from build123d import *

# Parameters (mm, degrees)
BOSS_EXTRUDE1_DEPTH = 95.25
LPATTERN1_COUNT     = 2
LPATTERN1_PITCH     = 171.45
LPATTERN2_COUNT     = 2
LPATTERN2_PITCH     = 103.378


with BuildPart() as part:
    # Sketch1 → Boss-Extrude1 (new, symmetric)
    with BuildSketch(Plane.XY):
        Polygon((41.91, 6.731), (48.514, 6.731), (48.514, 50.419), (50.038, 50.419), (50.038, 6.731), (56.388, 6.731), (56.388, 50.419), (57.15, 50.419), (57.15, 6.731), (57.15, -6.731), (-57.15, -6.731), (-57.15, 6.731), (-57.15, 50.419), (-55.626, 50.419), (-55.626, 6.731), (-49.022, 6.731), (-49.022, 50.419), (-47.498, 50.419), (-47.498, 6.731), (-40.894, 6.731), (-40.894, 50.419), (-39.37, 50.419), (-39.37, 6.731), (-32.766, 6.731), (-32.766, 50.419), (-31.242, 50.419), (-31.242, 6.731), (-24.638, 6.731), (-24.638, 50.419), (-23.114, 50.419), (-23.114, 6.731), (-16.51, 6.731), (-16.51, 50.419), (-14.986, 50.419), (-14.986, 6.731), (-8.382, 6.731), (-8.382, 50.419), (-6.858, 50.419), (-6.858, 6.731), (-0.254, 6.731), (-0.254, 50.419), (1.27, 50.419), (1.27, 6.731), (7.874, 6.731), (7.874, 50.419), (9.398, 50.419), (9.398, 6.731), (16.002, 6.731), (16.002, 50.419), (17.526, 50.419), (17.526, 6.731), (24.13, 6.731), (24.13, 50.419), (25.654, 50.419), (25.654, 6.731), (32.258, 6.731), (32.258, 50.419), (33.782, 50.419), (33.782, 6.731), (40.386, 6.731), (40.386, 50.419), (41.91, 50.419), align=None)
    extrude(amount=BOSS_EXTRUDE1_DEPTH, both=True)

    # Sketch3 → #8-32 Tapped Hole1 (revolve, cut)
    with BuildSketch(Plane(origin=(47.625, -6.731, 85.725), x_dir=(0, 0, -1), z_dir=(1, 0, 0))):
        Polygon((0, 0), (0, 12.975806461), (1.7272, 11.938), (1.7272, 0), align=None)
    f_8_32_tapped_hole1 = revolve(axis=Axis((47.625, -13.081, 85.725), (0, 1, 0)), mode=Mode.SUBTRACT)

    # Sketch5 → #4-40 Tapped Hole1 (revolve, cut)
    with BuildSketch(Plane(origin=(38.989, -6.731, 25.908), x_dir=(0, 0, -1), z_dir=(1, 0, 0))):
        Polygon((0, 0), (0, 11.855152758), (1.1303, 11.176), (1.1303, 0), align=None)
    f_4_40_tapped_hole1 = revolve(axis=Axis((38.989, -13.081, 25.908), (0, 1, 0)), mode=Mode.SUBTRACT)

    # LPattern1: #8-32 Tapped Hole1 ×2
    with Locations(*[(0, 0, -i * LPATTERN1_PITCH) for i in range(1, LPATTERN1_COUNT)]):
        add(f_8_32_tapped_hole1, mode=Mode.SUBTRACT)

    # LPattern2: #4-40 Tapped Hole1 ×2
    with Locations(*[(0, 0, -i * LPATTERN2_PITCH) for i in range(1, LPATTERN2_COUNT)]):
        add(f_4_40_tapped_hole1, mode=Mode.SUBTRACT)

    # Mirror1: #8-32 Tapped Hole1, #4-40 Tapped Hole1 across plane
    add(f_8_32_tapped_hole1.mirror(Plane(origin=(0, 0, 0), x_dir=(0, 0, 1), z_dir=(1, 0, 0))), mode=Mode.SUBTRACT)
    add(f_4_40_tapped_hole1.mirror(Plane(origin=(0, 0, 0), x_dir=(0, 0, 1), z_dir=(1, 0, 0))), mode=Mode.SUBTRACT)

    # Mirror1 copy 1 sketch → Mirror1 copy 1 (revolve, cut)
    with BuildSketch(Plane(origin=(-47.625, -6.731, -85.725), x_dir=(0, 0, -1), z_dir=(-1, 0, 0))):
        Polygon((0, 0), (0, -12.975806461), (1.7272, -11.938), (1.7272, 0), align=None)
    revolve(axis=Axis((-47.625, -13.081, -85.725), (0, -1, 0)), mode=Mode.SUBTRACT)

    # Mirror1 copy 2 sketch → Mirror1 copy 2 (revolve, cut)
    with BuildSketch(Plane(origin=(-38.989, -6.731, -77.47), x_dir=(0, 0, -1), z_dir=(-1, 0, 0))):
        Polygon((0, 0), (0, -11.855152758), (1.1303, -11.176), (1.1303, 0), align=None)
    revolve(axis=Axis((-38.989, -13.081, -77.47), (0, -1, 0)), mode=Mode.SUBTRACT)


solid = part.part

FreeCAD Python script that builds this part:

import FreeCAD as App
import Part
import Sketcher

V = App.Vector
Q = App.Units.Quantity


def add_polygon(sketch, points):
    """Adds a closed chain of lines whose ends are joined by coincident constraints."""
    first, n = sketch.GeometryCount, len(points)
    for a, b in zip(points, points[1:] + points[:1]):
        sketch.addGeometry(Part.LineSegment(App.Vector(*a, 0), App.Vector(*b, 0)), False)
    for i in range(n):
        sketch.addConstraint(Sketcher.Constraint("Coincident", first + i, 2, first + (i + 1) % n, 1))

doc = App.newDocument("Part")
params = doc.addObject("Spreadsheet::Sheet", "Params")
for row, (alias, value) in enumerate([
    ("sketch1_width", "4.5 in"),
    ("sketch1_width2", "0.26 in"),
    ("sketch1_width3", "0.06 in"),
    ("sketch1_width4", "0.03 in"),
    ("sketch1_height", "1.72 in"),
    ("pad1_length", "7.5 in"),
    ("sketch2_width", "0.47 in"),
    ("sketch2_height", "0.068 in"),
    ("groove_angle", "360 deg"),
    ("sketch3_width", "0.44 in"),
    ("groove2_angle", "360 deg"),
    ("linearpattern_pitch", "6.75 in"),
    ("linearpattern2_pitch", "4.07 in"),
    ("sketch4_width", "0.47 in"),
    ("sketch4_height", "0.068 in"),
    ("groove3_angle", "360 deg"),
    ("sketch5_width", "0.44 in"),
    ("groove4_angle", "360 deg"),
], start=1):
    params.set(f"A{row}", alias)
    params.set(f"B{row}", "=" + value)
    params.setAlias(f"B{row}", alias)

body = doc.addObject("PartDesign::Body", "Body")

# Sketch on XY plane
sketch1 = body.newObject("Sketcher::SketchObject", "Sketch")
sketch1.AttachmentSupport = (doc.getObject("XY_Plane"), [""])
sketch1.MapMode = "FlatFace"
add_polygon(sketch1, [(48.5, 6.7), (41.9, 6.7), (41.9, 50.4), (40.4, 50.4), (40.4, 6.7), (33.8, 6.7), (33.8, 50.4), (32.3, 50.4), (32.3, 6.7), (25.7, 6.7), (25.7, 50.4), (24.1, 50.4), (24.1, 6.7), (17.5, 6.7), (17.5, 50.4), (16, 50.4), (16, 6.7), (9.4, 6.7), (9.4, 50.4), (7.9, 50.4), (7.9, 6.7), (1.3, 6.7), (1.3, 50.4), (-0.3, 50.4), (-0.3, 6.7), (-6.9, 6.7), (-6.9, 50.4), (-8.4, 50.4), (-8.4, 6.7), (-15, 6.7), (-15, 50.4), (-16.5, 50.4), (-16.5, 6.7), (-23.1, 6.7), (-23.1, 50.4), (-24.6, 50.4), (-24.6, 6.7), (-31.2, 6.7), (-31.2, 50.4), (-32.8, 50.4), (-32.8, 6.7), (-39.4, 6.7), (-39.4, 50.4), (-40.9, 50.4), (-40.9, 6.7), (-47.5, 6.7), (-47.5, 50.4), (-49, 50.4), (-49, 6.7), (-55.6, 6.7), (-55.6, 50.4), (-57.1, 50.4), (-57.1, -6.7), (57.1, -6.7), (57.1, 50.4), (56.4, 50.4), (56.4, 6.7), (50, 6.7), (50, 50.4), (48.5, 50.4)])  # lines 0-59
sketch1.addConstraint(Sketcher.Constraint("Horizontal", 0))
sketch1.addConstraint(Sketcher.Constraint("Vertical", 1))
sketch1.addConstraint(Sketcher.Constraint("Horizontal", 2))
sketch1.addConstraint(Sketcher.Constraint("Vertical", 3))
sketch1.addConstraint(Sketcher.Constraint("Horizontal", 4))
sketch1.addConstraint(Sketcher.Constraint("Vertical", 5))
sketch1.addConstraint(Sketcher.Constraint("Horizontal", 6))
sketch1.addConstraint(Sketcher.Constraint("Vertical", 7))
sketch1.addConstraint(Sketcher.Constraint("Horizontal", 8))
sketch1.addConstraint(Sketcher.Constraint("Vertical", 9))
sketch1.addConstraint(Sketcher.Constraint("Horizontal", 10))
sketch1.addConstraint(Sketcher.Constraint("Vertical", 11))
sketch1.addConstraint(Sketcher.Constraint("Horizontal", 12))
sketch1.addConstraint(Sketcher.Constraint("Vertical", 13))
sketch1.addConstraint(Sketcher.Constraint("Horizontal", 14))
sketch1.addConstraint(Sketcher.Constraint("Vertical", 15))
sketch1.addConstraint(Sketcher.Constraint("Horizontal", 16))
sketch1.addConstraint(Sketcher.Constraint("Vertical", 17))
sketch1.addConstraint(Sketcher.Constraint("Horizontal", 18))
sketch1.addConstraint(Sketcher.Constraint("Vertical", 19))
sketch1.addConstraint(Sketcher.Constraint("Horizontal", 20))
sketch1.addConstraint(Sketcher.Constraint("Vertical", 21))
sketch1.addConstraint(Sketcher.Constraint("Horizontal", 22))
sketch1.addConstraint(Sketcher.Constraint("Vertical", 23))
sketch1.addConstraint(Sketcher.Constraint("Horizontal", 24))
sketch1.addConstraint(Sketcher.Constraint("Vertical", 25))
sketch1.addConstraint(Sketcher.Constraint("Horizontal", 26))
sketch1.addConstraint(Sketcher.Constraint("Vertical", 27))
sketch1.addConstraint(Sketcher.Constraint("Horizontal", 28))
sketch1.addConstraint(Sketcher.Constraint("Vertical", 29))
sketch1.addConstraint(Sketcher.Constraint("Horizontal", 30))
sketch1.addConstraint(Sketcher.Constraint("Vertical", 31))
sketch1.addConstraint(Sketcher.Constraint("Horizontal", 32))
sketch1.addConstraint(Sketcher.Constraint("Vertical", 33))
sketch1.addConstraint(Sketcher.Constraint("Horizontal", 34))
sketch1.addConstraint(Sketcher.Constraint("Vertical", 35))
sketch1.addConstraint(Sketcher.Constraint("Horizontal", 36))
sketch1.addConstraint(Sketcher.Constraint("Vertical", 37))
sketch1.addConstraint(Sketcher.Constraint("Horizontal", 38))
sketch1.addConstraint(Sketcher.Constraint("Vertical", 39))
sketch1.addConstraint(Sketcher.Constraint("Horizontal", 40))
sketch1.addConstraint(Sketcher.Constraint("Vertical", 41))
sketch1.addConstraint(Sketcher.Constraint("Horizontal", 42))
sketch1.addConstraint(Sketcher.Constraint("Vertical", 43))
sketch1.addConstraint(Sketcher.Constraint("Horizontal", 44))
sketch1.addConstraint(Sketcher.Constraint("Vertical", 45))
sketch1.addConstraint(Sketcher.Constraint("Horizontal", 46))
sketch1.addConstraint(Sketcher.Constraint("Vertical", 47))
sketch1.addConstraint(Sketcher.Constraint("Horizontal", 48))
sketch1.addConstraint(Sketcher.Constraint("Vertical", 49))
sketch1.addConstraint(Sketcher.Constraint("Horizontal", 50))
sketch1.addConstraint(Sketcher.Constraint("Vertical", 51))
sketch1.addConstraint(Sketcher.Constraint("Horizontal", 52))
sketch1.addConstraint(Sketcher.Constraint("Vertical", 53))
sketch1.addConstraint(Sketcher.Constraint("Horizontal", 54))
sketch1.addConstraint(Sketcher.Constraint("Vertical", 55))
sketch1.addConstraint(Sketcher.Constraint("Horizontal", 56))
sketch1.addConstraint(Sketcher.Constraint("Vertical", 57))
sketch1.addConstraint(Sketcher.Constraint("Horizontal", 58))
sketch1.addConstraint(Sketcher.Constraint("Vertical", 59))
sketch1.addConstraint(Sketcher.Constraint("Symmetric", 50, 2, 53, 2, -2))
sketch1.addConstraint(Sketcher.Constraint("Horizontal", 0, 2, 3, 2))
sketch1.addConstraint(Sketcher.Constraint("Horizontal", 2, 2, 5, 2))
sketch1.addConstraint(Sketcher.Constraint("Horizontal", 4, 2, 7, 2))
sketch1.addConstraint(Sketcher.Constraint("Horizontal", 6, 2, 9, 2))
sketch1.addConstraint(Sketcher.Constraint("Horizontal", 8, 2, 11, 2))
sketch1.addConstraint(Sketcher.Constraint("Horizontal", 10, 2, 13, 2))
sketch1.addConstraint(Sketcher.Constraint("Horizontal", 12, 2, 15, 2))
sketch1.addConstraint(Sketcher.Constraint("Horizontal", 14, 2, 17, 2))
sketch1.addConstraint(Sketcher.Constraint("Horizontal", 16, 2, 19, 2))
sketch1.addConstraint(Sketcher.Constraint("Horizontal", 18, 2, 21, 2))
sketch1.addConstraint(Sketcher.Constraint("Horizontal", 20, 2, 23, 2))
sketch1.addConstraint(Sketcher.Constraint("Horizontal", 22, 2, 25, 2))
sketch1.addConstraint(Sketcher.Constraint("Horizontal", 24, 2, 27, 2))
sketch1.addConstraint(Sketcher.Constraint("Horizontal", 26, 2, 29, 2))
sketch1.addConstraint(Sketcher.Constraint("Horizontal", 28, 2, 31, 2))
sketch1.addConstraint(Sketcher.Constraint("Horizontal", 30, 2, 33, 2))
sketch1.addConstraint(Sketcher.Constraint("Horizontal", 32, 2, 35, 2))
sketch1.addConstraint(Sketcher.Constraint("Horizontal", 34, 2, 37, 2))
sketch1.addConstraint(Sketcher.Constraint("Horizontal", 36, 2, 39, 2))
sketch1.addConstraint(Sketcher.Constraint("Horizontal", 38, 2, 41, 2))
sketch1.addConstraint(Sketcher.Constraint("Horizontal", 40, 2, 43, 2))
sketch1.addConstraint(Sketcher.Constraint("Horizontal", 42, 2, 45, 2))
sketch1.addConstraint(Sketcher.Constraint("Horizontal", 44, 2, 47, 2))
sketch1.addConstraint(Sketcher.Constraint("Horizontal", 46, 2, 49, 2))
sketch1.addConstraint(Sketcher.Constraint("Horizontal", 48, 2, 55, 2))
sketch1.addConstraint(Sketcher.Constraint("Horizontal", 54, 2, 57, 2))
sketch1.addConstraint(Sketcher.Constraint("Equal", 0, 4))
sketch1.addConstraint(Sketcher.Constraint("Equal", 2, 6))
sketch1.addConstraint(Sketcher.Constraint("Equal", 4, 8))
sketch1.addConstraint(Sketcher.Constraint("Equal", 6, 10))
sketch1.addConstraint(Sketcher.Constraint("Equal", 8, 12))
sketch1.addConstraint(Sketcher.Constraint("Equal", 10, 14))
sketch1.addConstraint(Sketcher.Constraint("Equal", 12, 16))
sketch1.addConstraint(Sketcher.Constraint("Equal", 14, 18))
sketch1.addConstraint(Sketcher.Constraint("Equal", 16, 20))
sketch1.addConstraint(Sketcher.Constraint("Equal", 18, 22))
sketch1.addConstraint(Sketcher.Constraint("Equal", 20, 24))
sketch1.addConstraint(Sketcher.Constraint("Equal", 22, 26))
sketch1.addConstraint(Sketcher.Constraint("Equal", 24, 28))
sketch1.addConstraint(Sketcher.Constraint("Equal", 26, 30))
sketch1.addConstraint(Sketcher.Constraint("Equal", 28, 32))
sketch1.addConstraint(Sketcher.Constraint("Equal", 30, 34))
sketch1.addConstraint(Sketcher.Constraint("Equal", 32, 36))
sketch1.addConstraint(Sketcher.Constraint("Equal", 34, 38))
sketch1.addConstraint(Sketcher.Constraint("Equal", 36, 40))
sketch1.addConstraint(Sketcher.Constraint("Equal", 38, 42))
sketch1.addConstraint(Sketcher.Constraint("Equal", 40, 44))
sketch1.addConstraint(Sketcher.Constraint("Equal", 42, 46))
sketch1.addConstraint(Sketcher.Constraint("Equal", 44, 48))
sketch1.addConstraint(Sketcher.Constraint("Equal", 46, 50))
sketch1.addConstraint(Sketcher.Constraint("Equal", 50, 58))
sketch1.addConstraint(Sketcher.Constraint("DistanceX", 52, 1, 52, 2, Q("4.5 in")))
sketch1.addConstraint(Sketcher.Constraint("DistanceX", 0, 2, 0, 1, Q("0.26 in")))
sketch1.addConstraint(Sketcher.Constraint("DistanceX", 2, 2, 2, 1, Q("0.06 in")))
sketch1.addConstraint(Sketcher.Constraint("DistanceX", 54, 2, 54, 1, Q("0.03 in")))
sketch1.addConstraint(Sketcher.Constraint("DistanceY", 1, 1, 1, 2, Q("1.72 in")))
sketch1.addConstraint(Sketcher.Constraint("DistanceY", 51, 2, 51, 1, Q("2.25 in")))
sketch1.addConstraint(Sketcher.Constraint("DistanceY", -1, 1, 0, 2, Q("0.265 in")))
sketch1.setExpression("Constraints[172]", "Params.sketch1_width")
sketch1.setExpression("Constraints[173]", "Params.sketch1_width2")
sketch1.setExpression("Constraints[174]", "Params.sketch1_width3")
sketch1.setExpression("Constraints[175]", "Params.sketch1_width4")
sketch1.setExpression("Constraints[176]", "Params.sketch1_height")
pad1 = body.newObject("PartDesign::Pad", "Pad")
pad1.Profile = sketch1
pad1.setExpression("Length", "Params.pad1_length")
pad1.Midplane = True

# Sketch on YZ plane
sketch2 = body.newObject("Sketcher::SketchObject", "Sketch001")
sketch2.AttachmentSupport = (doc.getObject("YZ_Plane"), [""])
sketch2.MapMode = "FlatFace"
sketch2.AttachmentOffset = App.Placement(V(0, 0, 1.875 * 25.4), App.Rotation())
add_polygon(sketch2, [(6.2, 85.7), (-6.7, 85.7), (-6.7, 84), (5.2, 84)])  # lines 0-3
sketch2.addGeometry(Part.LineSegment(V(-6.7, 85.7, 0), V(6.2, 85.7, 0)), True)  # axis
sketch2.addConstraint(Sketcher.Constraint("Horizontal", 0))
sketch2.addConstraint(Sketcher.Constraint("Vertical", 1))
sketch2.addConstraint(Sketcher.Constraint("Horizontal", 2))
sketch2.addConstraint(Sketcher.Constraint("Horizontal", 4))
sketch2.addConstraint(Sketcher.Constraint("Coincident", 4, 1, 0, 2))
sketch2.addConstraint(Sketcher.Constraint("Equal", 0, 4))
sketch2.addConstraint(Sketcher.Constraint("Angle", 3, Q("59 deg")))
sketch2.addConstraint(Sketcher.Constraint("DistanceX", 2, 1, 2, 2, Q("0.47 in")))
sketch2.addConstraint(Sketcher.Constraint("DistanceY", 1, 2, 1, 1, Q("0.068 in")))
sketch2.addConstraint(Sketcher.Constraint("DistanceX", 0, 2, -1, 1, Q("0.265 in")))
sketch2.addConstraint(Sketcher.Constraint("DistanceY", -1, 1, 0, 2, Q("3.375 in")))
sketch2.setExpression("Constraints[11]", "Params.sketch2_width")
sketch2.setExpression("Constraints[12]", "Params.sketch2_height")
groove = body.newObject("PartDesign::Groove", "Groove")
groove.Profile = sketch2
groove.ReferenceAxis = (sketch2, ["Axis0"])
groove.setExpression("Angle", "Params.groove_angle")

# Sketch on YZ plane
sketch3 = body.newObject("Sketcher::SketchObject", "Sketch002")
sketch3.AttachmentSupport = (doc.getObject("YZ_Plane"), [""])
sketch3.MapMode = "FlatFace"
sketch3.AttachmentOffset = App.Placement(V(0, 0, 1.535 * 25.4), App.Rotation())
add_polygon(sketch3, [(5.1, 25.9), (-6.7, 25.9), (-6.7, 24.8), (4.4, 24.8)])  # lines 0-3
sketch3.addGeometry(Part.LineSegment(V(-6.7, 25.9, 0), V(5.1, 25.9, 0)), True)  # axis
sketch3.addConstraint(Sketcher.Constraint("Horizontal", 0))
sketch3.addConstraint(Sketcher.Constraint("Vertical", 1))
sketch3.addConstraint(Sketcher.Constraint("Horizontal", 2))
sketch3.addConstraint(Sketcher.Constraint("Horizontal", 4))
sketch3.addConstraint(Sketcher.Constraint("Coincident", 4, 1, 0, 2))
sketch3.addConstraint(Sketcher.Constraint("Equal", 0, 4))
sketch3.addConstraint(Sketcher.Constraint("Angle", 3, Q("59 deg")))
sketch3.addConstraint(Sketcher.Constraint("DistanceX", 2, 1, 2, 2, Q("0.44 in")))
sketch3.addConstraint(Sketcher.Constraint("DistanceY", -1, 1, 0, 2, Q("1.02 in")))
sketch3.addConstraint(Sketcher.Constraint("DistanceY", 1, 2, 1, 1, Q("0.0445 in")))
sketch3.addConstraint(Sketcher.Constraint("DistanceX", 0, 2, -1, 1, Q("0.265 in")))
sketch3.setExpression("Constraints[11]", "Params.sketch3_width")
groove2 = body.newObject("PartDesign::Groove", "Groove001")
groove2.Profile = sketch3
groove2.ReferenceAxis = (sketch3, ["Axis0"])
groove2.setExpression("Angle", "Params.groove2_angle")
doc.recompute()

linearpattern = body.newObject("PartDesign::LinearPattern", "LinearPattern")
linearpattern.Originals = [groove]
linearpattern.Direction = (doc.getObject("Z_Axis"), [""])
linearpattern.Mode = "offset"
linearpattern.setExpression("Offset", "Params.linearpattern_pitch")
linearpattern.Occurrences = 2
linearpattern.Reversed = True
body.Tip = linearpattern
doc.recompute()

linearpattern2 = body.newObject("PartDesign::LinearPattern", "LinearPattern001")
linearpattern2.Originals = [groove2]
linearpattern2.Direction = (doc.getObject("Z_Axis"), [""])
linearpattern2.Mode = "offset"
linearpattern2.setExpression("Offset", "Params.linearpattern2_pitch")
linearpattern2.Occurrences = 2
linearpattern2.Reversed = True
body.Tip = linearpattern2
doc.recompute()

mirrored = body.newObject("PartDesign::Mirrored", "Mirrored")
mirrored.Originals = [groove, groove2]
mirrored.MirrorPlane = (doc.getObject("YZ_Plane"), [""])
body.Tip = mirrored

# Sketch on YZ plane
sketch4 = body.newObject("Sketcher::SketchObject", "Sketch003")
sketch4.AttachmentSupport = (doc.getObject("YZ_Plane"), [""])
sketch4.MapMode = "FlatFace"
sketch4.AttachmentOffset = App.Placement(V(0, 0, -1.875 * 25.4), App.Rotation())
add_polygon(sketch4, [(-6.7, -85.7), (6.2, -85.7), (5.2, -87.5), (-6.7, -87.5)])  # lines 0-3
sketch4.addGeometry(Part.LineSegment(V(6.2, -85.7, 0), V(-6.7, -85.7, 0)), True)  # axis
sketch4.addConstraint(Sketcher.Constraint("Horizontal", 0))
sketch4.addConstraint(Sketcher.Constraint("Horizontal", 2))
sketch4.addConstraint(Sketcher.Constraint("Vertical", 3))
sketch4.addConstraint(Sketcher.Constraint("Horizontal", 4))
sketch4.addConstraint(Sketcher.Constraint("Coincident", 4, 1, 0, 2))
sketch4.addConstraint(Sketcher.Constraint("Vertical", 2, 2, 4, 2))
sketch4.addConstraint(Sketcher.Constraint("Angle", 1, Q("-121 deg")))
sketch4.addConstraint(Sketcher.Constraint("DistanceX", 2, 2, 2, 1, Q("0.47 in")))
sketch4.addConstraint(Sketcher.Constraint("DistanceY", 3, 1, 3, 2, Q("0.068 in")))
sketch4.addConstraint(Sketcher.Constraint("DistanceY", 0, 2, -1, 1, Q("3.375 in")))
sketch4.addConstraint(Sketcher.Constraint("DistanceX", -1, 1, 1, 2, Q("0.205 in")))
sketch4.setExpression("Constraints[11]", "Params.sketch4_width")
sketch4.setExpression("Constraints[12]", "Params.sketch4_height")
groove3 = body.newObject("PartDesign::Groove", "Groove002")
groove3.Profile = sketch4
groove3.ReferenceAxis = (sketch4, ["Axis0"])
groove3.setExpression("Angle", "Params.groove3_angle")

# Sketch on YZ plane
sketch5 = body.newObject("Sketcher::SketchObject", "Sketch004")
sketch5.AttachmentSupport = (doc.getObject("YZ_Plane"), [""])
sketch5.MapMode = "FlatFace"
sketch5.AttachmentOffset = App.Placement(V(0, 0, -1.535 * 25.4), App.Rotation())
add_polygon(sketch5, [(-6.7, -77.5), (5.1, -77.5), (4.4, -78.6), (-6.7, -78.6)])  # lines 0-3
sketch5.addGeometry(Part.LineSegment(V(5.1, -77.5, 0), V(-6.7, -77.5, 0)), True)  # axis
sketch5.addConstraint(Sketcher.Constraint("Horizontal", 0))
sketch5.addConstraint(Sketcher.Constraint("Horizontal", 2))
sketch5.addConstraint(Sketcher.Constraint("Vertical", 3))
sketch5.addConstraint(Sketcher.Constraint("Horizontal", 4))
sketch5.addConstraint(Sketcher.Constraint("Coincident", 4, 1, 0, 2))
sketch5.addConstraint(Sketcher.Constraint("Vertical", 2, 2, 4, 2))
sketch5.addConstraint(Sketcher.Constraint("Angle", 1, Q("-121 deg")))
sketch5.addConstraint(Sketcher.Constraint("DistanceX", 2, 2, 2, 1, Q("0.44 in")))
sketch5.addConstraint(Sketcher.Constraint("DistanceY", 0, 2, -1, 1, Q("3.05 in")))
sketch5.addConstraint(Sketcher.Constraint("DistanceY", 3, 1, 3, 2, Q("0.0445 in")))
sketch5.addConstraint(Sketcher.Constraint("DistanceX", -1, 1, 1, 2, Q("0.175 in")))
sketch5.setExpression("Constraints[11]", "Params.sketch5_width")
groove4 = body.newObject("PartDesign::Groove", "Groove003")
groove4.Profile = sketch5
groove4.ReferenceAxis = (sketch5, ["Axis0"])
groove4.setExpression("Angle", "Params.groove4_angle")

doc.recompute()
